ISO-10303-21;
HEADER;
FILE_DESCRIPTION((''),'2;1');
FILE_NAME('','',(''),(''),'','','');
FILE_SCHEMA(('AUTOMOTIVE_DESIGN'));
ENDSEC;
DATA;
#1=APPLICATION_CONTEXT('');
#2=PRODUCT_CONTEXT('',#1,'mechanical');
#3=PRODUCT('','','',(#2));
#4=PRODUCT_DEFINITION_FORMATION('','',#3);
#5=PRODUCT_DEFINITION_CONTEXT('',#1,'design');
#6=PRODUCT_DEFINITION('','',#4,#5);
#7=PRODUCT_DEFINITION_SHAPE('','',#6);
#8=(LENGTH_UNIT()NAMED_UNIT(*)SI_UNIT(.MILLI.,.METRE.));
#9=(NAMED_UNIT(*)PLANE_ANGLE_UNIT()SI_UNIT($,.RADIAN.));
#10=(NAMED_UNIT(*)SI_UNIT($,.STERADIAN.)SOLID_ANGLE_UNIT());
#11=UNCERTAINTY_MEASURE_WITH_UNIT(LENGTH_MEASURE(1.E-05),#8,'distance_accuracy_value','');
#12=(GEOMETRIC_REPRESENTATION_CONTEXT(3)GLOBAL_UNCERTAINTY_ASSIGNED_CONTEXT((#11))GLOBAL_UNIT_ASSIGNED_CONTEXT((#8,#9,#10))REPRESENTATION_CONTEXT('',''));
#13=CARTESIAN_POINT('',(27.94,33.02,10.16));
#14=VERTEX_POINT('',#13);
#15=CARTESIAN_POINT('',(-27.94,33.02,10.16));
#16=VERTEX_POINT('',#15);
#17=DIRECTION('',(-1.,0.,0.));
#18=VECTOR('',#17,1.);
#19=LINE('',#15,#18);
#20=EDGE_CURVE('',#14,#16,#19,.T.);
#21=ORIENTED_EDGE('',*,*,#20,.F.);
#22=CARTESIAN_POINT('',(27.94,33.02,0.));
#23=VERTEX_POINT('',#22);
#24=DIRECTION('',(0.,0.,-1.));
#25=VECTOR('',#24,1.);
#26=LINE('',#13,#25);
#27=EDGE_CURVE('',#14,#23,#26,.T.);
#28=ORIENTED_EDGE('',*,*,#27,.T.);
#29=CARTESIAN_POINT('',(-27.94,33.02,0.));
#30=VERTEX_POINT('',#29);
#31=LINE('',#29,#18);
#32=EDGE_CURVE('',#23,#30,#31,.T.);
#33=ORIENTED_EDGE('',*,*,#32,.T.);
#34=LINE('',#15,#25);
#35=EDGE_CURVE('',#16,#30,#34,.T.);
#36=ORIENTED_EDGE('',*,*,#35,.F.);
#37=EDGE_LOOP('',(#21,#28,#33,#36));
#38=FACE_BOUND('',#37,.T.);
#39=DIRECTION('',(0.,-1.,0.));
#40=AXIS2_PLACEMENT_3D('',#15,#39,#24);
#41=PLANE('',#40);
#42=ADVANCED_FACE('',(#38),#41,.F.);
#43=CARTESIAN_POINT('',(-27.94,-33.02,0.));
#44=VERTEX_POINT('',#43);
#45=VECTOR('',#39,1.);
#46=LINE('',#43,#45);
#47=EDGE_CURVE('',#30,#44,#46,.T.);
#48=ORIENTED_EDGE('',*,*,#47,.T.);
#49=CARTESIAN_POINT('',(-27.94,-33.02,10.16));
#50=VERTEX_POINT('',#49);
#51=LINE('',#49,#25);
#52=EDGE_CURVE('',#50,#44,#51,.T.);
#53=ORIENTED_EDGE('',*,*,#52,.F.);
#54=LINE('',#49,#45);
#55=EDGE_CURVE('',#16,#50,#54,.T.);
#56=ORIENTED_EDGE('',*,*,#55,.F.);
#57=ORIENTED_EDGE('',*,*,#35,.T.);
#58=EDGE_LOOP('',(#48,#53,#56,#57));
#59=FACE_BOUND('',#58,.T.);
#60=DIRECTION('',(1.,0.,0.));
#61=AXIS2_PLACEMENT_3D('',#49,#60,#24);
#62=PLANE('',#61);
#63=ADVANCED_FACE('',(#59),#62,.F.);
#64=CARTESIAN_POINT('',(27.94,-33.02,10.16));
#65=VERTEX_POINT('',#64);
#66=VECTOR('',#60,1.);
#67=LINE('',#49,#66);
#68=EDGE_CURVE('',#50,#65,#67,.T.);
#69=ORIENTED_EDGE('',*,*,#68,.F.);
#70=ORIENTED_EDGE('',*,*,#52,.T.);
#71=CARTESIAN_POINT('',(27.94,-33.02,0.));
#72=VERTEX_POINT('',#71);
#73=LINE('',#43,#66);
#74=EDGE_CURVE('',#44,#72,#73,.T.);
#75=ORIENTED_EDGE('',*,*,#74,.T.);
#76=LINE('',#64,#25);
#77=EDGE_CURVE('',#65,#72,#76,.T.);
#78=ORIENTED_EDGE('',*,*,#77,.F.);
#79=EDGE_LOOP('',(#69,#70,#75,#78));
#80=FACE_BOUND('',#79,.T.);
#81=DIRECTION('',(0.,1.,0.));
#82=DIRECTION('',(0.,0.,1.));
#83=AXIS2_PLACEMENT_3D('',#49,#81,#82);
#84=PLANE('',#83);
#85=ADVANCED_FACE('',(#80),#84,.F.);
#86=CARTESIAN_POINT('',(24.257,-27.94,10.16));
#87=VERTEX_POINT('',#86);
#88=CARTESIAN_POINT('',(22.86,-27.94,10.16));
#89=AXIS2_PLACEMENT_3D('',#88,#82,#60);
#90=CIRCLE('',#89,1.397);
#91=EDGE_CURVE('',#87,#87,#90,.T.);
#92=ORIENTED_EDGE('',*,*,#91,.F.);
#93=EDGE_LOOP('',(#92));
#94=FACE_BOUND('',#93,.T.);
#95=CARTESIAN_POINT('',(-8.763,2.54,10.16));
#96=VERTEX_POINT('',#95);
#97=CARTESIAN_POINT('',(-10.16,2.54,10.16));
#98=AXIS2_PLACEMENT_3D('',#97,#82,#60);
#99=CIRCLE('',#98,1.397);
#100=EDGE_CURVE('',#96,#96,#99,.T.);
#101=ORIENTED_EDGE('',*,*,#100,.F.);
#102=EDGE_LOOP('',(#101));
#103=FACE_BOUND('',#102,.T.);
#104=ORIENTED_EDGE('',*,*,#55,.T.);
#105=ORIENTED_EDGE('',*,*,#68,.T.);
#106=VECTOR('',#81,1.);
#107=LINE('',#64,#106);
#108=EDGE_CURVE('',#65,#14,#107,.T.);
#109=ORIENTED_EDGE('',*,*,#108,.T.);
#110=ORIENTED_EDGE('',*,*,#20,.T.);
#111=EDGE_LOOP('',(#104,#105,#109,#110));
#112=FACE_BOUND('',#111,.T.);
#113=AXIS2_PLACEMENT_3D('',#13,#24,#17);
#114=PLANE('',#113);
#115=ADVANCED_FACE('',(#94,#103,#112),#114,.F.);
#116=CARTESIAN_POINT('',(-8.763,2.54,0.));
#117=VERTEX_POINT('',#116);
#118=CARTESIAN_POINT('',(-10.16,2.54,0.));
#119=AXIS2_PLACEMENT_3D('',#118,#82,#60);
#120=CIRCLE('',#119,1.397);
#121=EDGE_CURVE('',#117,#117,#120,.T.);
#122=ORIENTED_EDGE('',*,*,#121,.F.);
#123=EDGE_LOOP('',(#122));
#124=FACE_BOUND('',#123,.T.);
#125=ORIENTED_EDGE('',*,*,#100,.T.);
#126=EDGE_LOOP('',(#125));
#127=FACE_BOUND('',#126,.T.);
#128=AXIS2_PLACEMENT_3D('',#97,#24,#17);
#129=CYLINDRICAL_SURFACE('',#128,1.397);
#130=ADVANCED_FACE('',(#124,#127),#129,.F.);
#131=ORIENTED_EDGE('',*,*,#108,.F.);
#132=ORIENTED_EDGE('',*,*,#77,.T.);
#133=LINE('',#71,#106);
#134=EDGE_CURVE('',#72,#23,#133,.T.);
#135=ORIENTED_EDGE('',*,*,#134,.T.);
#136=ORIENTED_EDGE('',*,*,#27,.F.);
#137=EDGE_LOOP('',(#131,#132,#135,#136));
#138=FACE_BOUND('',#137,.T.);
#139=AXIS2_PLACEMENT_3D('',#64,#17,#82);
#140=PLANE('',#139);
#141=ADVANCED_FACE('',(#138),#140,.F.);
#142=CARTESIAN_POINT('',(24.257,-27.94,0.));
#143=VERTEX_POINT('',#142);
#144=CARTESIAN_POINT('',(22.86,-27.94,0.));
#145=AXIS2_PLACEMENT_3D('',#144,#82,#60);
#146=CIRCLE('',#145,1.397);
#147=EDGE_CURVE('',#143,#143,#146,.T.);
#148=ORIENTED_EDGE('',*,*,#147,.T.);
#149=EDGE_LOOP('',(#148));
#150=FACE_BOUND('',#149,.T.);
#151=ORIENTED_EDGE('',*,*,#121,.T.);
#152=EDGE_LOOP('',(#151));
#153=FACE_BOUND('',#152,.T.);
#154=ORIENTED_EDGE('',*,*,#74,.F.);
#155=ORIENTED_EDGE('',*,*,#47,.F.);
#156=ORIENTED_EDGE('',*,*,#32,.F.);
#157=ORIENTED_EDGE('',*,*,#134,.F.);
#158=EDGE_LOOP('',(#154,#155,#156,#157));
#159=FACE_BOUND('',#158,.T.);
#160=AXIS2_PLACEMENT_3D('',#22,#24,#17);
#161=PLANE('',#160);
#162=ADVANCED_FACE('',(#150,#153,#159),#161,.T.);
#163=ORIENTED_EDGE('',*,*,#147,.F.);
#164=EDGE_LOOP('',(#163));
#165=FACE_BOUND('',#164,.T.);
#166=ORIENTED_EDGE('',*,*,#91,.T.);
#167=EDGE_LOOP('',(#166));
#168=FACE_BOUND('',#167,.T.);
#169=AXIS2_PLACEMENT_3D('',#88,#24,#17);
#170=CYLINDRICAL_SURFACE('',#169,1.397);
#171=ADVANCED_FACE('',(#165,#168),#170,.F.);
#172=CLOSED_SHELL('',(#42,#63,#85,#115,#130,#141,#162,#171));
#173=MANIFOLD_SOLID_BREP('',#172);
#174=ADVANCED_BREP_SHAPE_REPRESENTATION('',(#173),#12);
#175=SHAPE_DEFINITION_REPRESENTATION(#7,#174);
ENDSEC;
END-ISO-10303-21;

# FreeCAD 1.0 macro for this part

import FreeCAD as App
import Part
import Sketcher

V = App.Vector
Q = App.Units.Quantity


def add_polygon(sketch, points):
    """Adds a closed chain of lines whose ends are joined by coincident constraints."""
    first, n = sketch.GeometryCount, len(points)
    for a, b in zip(points, points[1:] + points[:1]):
        sketch.addGeometry(Part.LineSegment(App.Vector(*a, 0), App.Vector(*b, 0)), False)
    for i in range(n):
        sketch.addConstraint(Sketcher.Constraint("Coincident", first + i, 2, first + (i + 1) % n, 1))

doc = App.newDocument("Part")
body = doc.addObject("PartDesign::Body", "Body")

# Sketch on XY plane
sketch1 = body.newObject("Sketcher::SketchObject", "Sketch")
sketch1.AttachmentSupport = (doc.getObject("XY_Plane"), [""])
sketch1.MapMode = "FlatFace"
add_polygon(sketch1, [(-27.9, 33), (-27.9, -33), (27.9, -33), (27.9, 33)])  # lines 0-3
sketch1.addGeometry(Part.Circle(V(22.9, -27.9, 0), V(0, 0, 1), 1.4), False)  # 4
sketch1.addGeometry(Part.Circle(V(-10.2, 2.5, 0), V(0, 0, 1), 1.4), False)  # 5
sketch1.addConstraint(Sketcher.Constraint("Vertical", 0))
sketch1.addConstraint(Sketcher.Constraint("Horizontal", 1))
sketch1.addConstraint(Sketcher.Constraint("Vertical", 2))
sketch1.addConstraint(Sketcher.Constraint("Horizontal", 3))
sketch1.addConstraint(Sketcher.Constraint("Equal", 4, 5))
sketch1.addConstraint(Sketcher.Constraint("Symmetric", 0, 2, 2, 2, -1, 1))
sketch1.addConstraint(Sketcher.Constraint("Diameter", 4, Q("0.11 in")))
sketch1.addConstraint(Sketcher.Constraint("DistanceX", 1, 1, 1, 2, Q("2.2 in")))
sketch1.addConstraint(Sketcher.Constraint("DistanceY", 0, 2, 0, 1, Q("2.6 in")))
sketch1.addConstraint(Sketcher.Constraint("DistanceX", 0, 2, 4, 3, Q("2 in")))
sketch1.addConstraint(Sketcher.Constraint("DistanceY", 4, 3, -1, 1, Q("1.1 in")))
sketch1.addConstraint(Sketcher.Constraint("DistanceX", 5, 3, -1, 1, Q("0.4 in")))
sketch1.addConstraint(Sketcher.Constraint("DistanceY", -1, 1, 5, 3, Q("0.1 in")))
pad1 = body.newObject("PartDesign::Pad", "Pad")
pad1.Profile = sketch1
pad1.Length = Q("0.4 in")

doc.recompute()
